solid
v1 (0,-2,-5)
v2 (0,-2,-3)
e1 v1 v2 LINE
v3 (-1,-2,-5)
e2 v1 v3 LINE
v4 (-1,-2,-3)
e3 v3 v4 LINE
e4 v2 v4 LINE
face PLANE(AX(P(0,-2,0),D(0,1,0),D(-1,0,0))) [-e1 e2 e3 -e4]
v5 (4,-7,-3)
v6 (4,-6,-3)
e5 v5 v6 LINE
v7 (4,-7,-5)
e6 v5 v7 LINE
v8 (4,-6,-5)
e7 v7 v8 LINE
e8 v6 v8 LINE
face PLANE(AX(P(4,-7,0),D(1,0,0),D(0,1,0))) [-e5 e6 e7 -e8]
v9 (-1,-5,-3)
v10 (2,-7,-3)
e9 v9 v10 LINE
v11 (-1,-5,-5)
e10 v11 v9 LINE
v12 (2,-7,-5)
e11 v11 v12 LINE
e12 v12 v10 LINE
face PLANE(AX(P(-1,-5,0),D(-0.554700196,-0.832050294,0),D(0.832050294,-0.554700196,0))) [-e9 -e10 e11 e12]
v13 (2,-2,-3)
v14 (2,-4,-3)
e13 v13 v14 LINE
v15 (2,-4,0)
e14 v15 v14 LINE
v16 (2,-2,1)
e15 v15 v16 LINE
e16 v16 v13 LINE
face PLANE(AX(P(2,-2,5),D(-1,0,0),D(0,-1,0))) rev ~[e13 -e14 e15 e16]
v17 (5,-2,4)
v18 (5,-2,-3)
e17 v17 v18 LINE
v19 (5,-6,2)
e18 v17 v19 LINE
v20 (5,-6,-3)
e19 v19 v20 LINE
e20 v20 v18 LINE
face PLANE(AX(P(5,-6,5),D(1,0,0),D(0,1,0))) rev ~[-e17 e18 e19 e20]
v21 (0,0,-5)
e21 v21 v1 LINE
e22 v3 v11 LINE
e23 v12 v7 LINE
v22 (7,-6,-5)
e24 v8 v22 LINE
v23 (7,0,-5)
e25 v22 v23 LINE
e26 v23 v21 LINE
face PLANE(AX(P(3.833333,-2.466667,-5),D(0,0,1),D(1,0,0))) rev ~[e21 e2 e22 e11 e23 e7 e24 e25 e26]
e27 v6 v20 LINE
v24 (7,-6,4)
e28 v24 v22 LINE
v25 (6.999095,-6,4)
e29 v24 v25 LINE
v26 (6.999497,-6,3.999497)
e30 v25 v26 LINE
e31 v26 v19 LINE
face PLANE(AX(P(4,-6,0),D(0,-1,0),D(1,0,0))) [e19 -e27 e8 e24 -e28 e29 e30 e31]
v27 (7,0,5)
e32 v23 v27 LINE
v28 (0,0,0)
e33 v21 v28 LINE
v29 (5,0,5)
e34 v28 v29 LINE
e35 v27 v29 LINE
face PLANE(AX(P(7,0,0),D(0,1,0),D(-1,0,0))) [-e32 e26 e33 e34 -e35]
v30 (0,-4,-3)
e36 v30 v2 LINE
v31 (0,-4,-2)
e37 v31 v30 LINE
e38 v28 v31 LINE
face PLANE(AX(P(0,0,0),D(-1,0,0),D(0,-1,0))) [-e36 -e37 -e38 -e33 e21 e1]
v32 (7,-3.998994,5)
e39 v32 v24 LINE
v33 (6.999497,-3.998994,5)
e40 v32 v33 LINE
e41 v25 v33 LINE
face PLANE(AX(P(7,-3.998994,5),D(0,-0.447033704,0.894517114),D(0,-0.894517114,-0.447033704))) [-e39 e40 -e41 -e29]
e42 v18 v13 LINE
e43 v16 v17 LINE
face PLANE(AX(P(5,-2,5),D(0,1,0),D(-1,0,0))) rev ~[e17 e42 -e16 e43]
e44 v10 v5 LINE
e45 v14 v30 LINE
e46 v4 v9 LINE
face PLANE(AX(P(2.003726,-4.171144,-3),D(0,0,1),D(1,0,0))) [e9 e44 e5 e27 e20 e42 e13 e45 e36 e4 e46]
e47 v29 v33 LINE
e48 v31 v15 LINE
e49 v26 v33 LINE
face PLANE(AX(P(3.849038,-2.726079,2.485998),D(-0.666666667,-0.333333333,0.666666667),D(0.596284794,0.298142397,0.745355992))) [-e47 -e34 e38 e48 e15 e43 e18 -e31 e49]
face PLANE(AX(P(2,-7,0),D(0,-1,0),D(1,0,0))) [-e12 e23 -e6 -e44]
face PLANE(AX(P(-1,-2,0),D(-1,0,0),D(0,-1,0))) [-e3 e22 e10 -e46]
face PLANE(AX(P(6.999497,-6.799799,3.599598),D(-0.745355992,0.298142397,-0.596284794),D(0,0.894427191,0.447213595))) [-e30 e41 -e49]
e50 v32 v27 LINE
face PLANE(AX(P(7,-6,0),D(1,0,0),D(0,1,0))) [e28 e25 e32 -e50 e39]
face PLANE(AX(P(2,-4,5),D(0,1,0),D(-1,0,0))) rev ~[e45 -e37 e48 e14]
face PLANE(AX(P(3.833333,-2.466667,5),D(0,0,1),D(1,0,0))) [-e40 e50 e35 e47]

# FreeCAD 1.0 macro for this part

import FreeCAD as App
import Part
import Sketcher

V = App.Vector
Q = App.Units.Quantity


def add_polygon(sketch, points):
    """Adds a closed chain of lines whose ends are joined by coincident constraints."""
    first, n = sketch.GeometryCount, len(points)
    for a, b in zip(points, points[1:] + points[:1]):
        sketch.addGeometry(Part.LineSegment(App.Vector(*a, 0), App.Vector(*b, 0)), False)
    for i in range(n):
        sketch.addConstraint(Sketcher.Constraint("Coincident", first + i, 2, first + (i + 1) % n, 1))

doc = App.newDocument("Part")
body = doc.addObject("PartDesign::Body", "Body")

sketch1 = body.newObject("Sketcher::SketchObject", "Sketch")
sketch1.AttachmentSupport = (doc.getObject("XY_Plane"), [""])
sketch1.MapMode = "FlatFace"
add_polygon(sketch1, [(7, -6), (7, 0), (0, 0), (0, -2), (-1, -2), (-1, -5), (2, -7), (4, -7), (4, -6)])
sketch1.addConstraint(Sketcher.Constraint("Vertical", 0))
sketch1.addConstraint(Sketcher.Constraint("Horizontal", 1))
sketch1.addConstraint(Sketcher.Constraint("Vertical", 2))
sketch1.addConstraint(Sketcher.Constraint("Horizontal", 3))
sketch1.addConstraint(Sketcher.Constraint("Vertical", 4))
sketch1.addConstraint(Sketcher.Constraint("Horizontal", 6))
sketch1.addConstraint(Sketcher.Constraint("Vertical", 7))
sketch1.addConstraint(Sketcher.Constraint("Horizontal", 8))
sketch1.addConstraint(Sketcher.Constraint("Coincident", 1, 2, -1, 1))
sketch1.addConstraint(Sketcher.Constraint("Equal", 6, 2))
sketch1.addConstraint(Sketcher.Constraint("Equal", 8, 4))
sketch1.addConstraint(Sketcher.Constraint("Equal", 3, 7))
sketch1.addConstraint(Sketcher.Constraint("DistanceX", 1, 2, 1, 1, Q("7 mm")))
sketch1.addConstraint(Sketcher.Constraint("DistanceX", 3, 2, 3, 1, Q("1 mm")))
sketch1.addConstraint(Sketcher.Constraint("DistanceX", 6, 1, 6, 2, Q("2 mm")))
sketch1.addConstraint(Sketcher.Constraint("DistanceX", 8, 1, 8, 2, Q("3 mm")))
sketch1.addConstraint(Sketcher.Constraint("DistanceY", 0, 1, 0, 2, Q("6 mm")))
pad1 = body.newObject("PartDesign::Pad", "Pad")
pad1.Profile = sketch1
pad1.Length = 10
pad1.Midplane = True

sketch2 = body.newObject("Sketcher::SketchObject", "Sketch001")
sketch2.AttachmentSupport = (doc.getObject("XY_Plane"), [""])
sketch2.MapMode = "FlatFace"
sketch2.AttachmentOffset = App.Placement(V(0, 0, 5), App.Rotation())
add_polygon(sketch2, [(5, -6), (5, -2), (2, -2), (2, -4), (0, -4), (0, -2), (-1, -2), (-1, -5), (2, -7), (4, -7), (4, -6)])
sketch2.addConstraint(Sketcher.Constraint("Vertical", 0))
sketch2.addConstraint(Sketcher.Constraint("Horizontal", 1))
sketch2.addConstraint(Sketcher.Constraint("Vertical", 2))
sketch2.addConstraint(Sketcher.Constraint("Horizontal", 3))
sketch2.addConstraint(Sketcher.Constraint("Vertical", 4))
sketch2.addConstraint(Sketcher.Constraint("Horizontal", 5))
sketch2.addConstraint(Sketcher.Constraint("Vertical", 6))
sketch2.addConstraint(Sketcher.Constraint("Horizontal", 8))
sketch2.addConstraint(Sketcher.Constraint("Vertical", 9))
sketch2.addConstraint(Sketcher.Constraint("Horizontal", 10))
sketch2.addConstraint(Sketcher.Constraint("PointOnObject", 3, 2, -2))
sketch2.addConstraint(Sketcher.Constraint("Horizontal", 1, 2, 4, 2))
sketch2.addConstraint(Sketcher.Constraint("Vertical", 2, 2, 7, 2))
sketch2.addConstraint(Sketcher.Constraint("Equal", 3, 8))
sketch2.addConstraint(Sketcher.Constraint("Equal", 5, 10))
sketch2.addConstraint(Sketcher.Constraint("Equal", 8, 2))
sketch2.addConstraint(Sketcher.Constraint("Equal", 1, 6))
sketch2.addConstraint(Sketcher.Constraint("Equal", 10, 9))
sketch2.addConstraint(Sketcher.Constraint("DistanceX", 1, 2, 1, 1, Q("3 mm")))
sketch2.addConstraint(Sketcher.Constraint("DistanceX", 3, 2, 3, 1, Q("2 mm")))
sketch2.addConstraint(Sketcher.Constraint("DistanceY", 0, 1, 0, 2, Q("4 mm")))
sketch2.addConstraint(Sketcher.Constraint("DistanceY", 0, 2, -1, 1, Q("2 mm")))
pocket1 = body.newObject("PartDesign::Pocket", "Pocket")
pocket1.Profile = sketch2
pocket1.Length = 8

sketch3 = body.newObject("Sketcher::SketchObject", "Sketch002")
sketch3.AttachmentSupport = (doc.getObject("XZ_Plane"), [""])
sketch3.MapMode = "FlatFace"
sketch3.AttachmentOffset = App.Placement(V(0, 0, 2), App.Rotation())
add_polygon(sketch3, [(0, 0), (5, 5), (0, 5)])
sketch3.addConstraint(Sketcher.Constraint("Horizontal", 1))
sketch3.addConstraint(Sketcher.Constraint("Vertical", 2))
sketch3.addConstraint(Sketcher.Constraint("Coincident", 2, 2, -1, 1))
sketch3.addConstraint(Sketcher.Constraint("Equal", 1, 2))
sketch3.addConstraint(Sketcher.Constraint("DistanceX", 1, 2, 1, 1, Q("5 mm")))
pocket2 = body.newObject("PartDesign::Pocket", "Pocket001")
pocket2.Profile = sketch3
pocket2.Type = "ThroughAll"

sketch4 = body.newObject("Sketcher::SketchObject", "Sketch003")
sketch4.AttachmentSupport = (doc.getObject("XZ_Plane"), [""])
sketch4.MapMode = "FlatFace"
sketch4.AttachmentOffset = App.Placement(V(0, 0, 4), App.Rotation())
add_polygon(sketch4, [(0, 0), (2, 2), (2, 5), (0, 5)])
sketch4.addConstraint(Sketcher.Constraint("Vertical", 1))
sketch4.addConstraint(Sketcher.Constraint("Horizontal", 2))
sketch4.addConstraint(Sketcher.Constraint("Vertical", 3))
sketch4.addConstraint(Sketcher.Constraint("Coincident", 3, 2, -1, 1))
sketch4.addConstraint(Sketcher.Constraint("DistanceX", 2, 2, 2, 1, Q("2 mm")))
sketch4.addConstraint(Sketcher.Constraint("DistanceY", 1, 1, 1, 2, Q("3 mm")))
sketch4.addConstraint(Sketcher.Constraint("DistanceY", 3, 2, 3, 1, Q("5 mm")))
pocket3 = body.newObject("PartDesign::Pocket", "Pocket002")
pocket3.Profile = sketch4
pocket3.Type = "ThroughAll"

sketch5 = body.newObject("Sketcher::SketchObject", "Sketch004")
sketch5.Placement = App.Placement(V(0, 0, 0), App.Rotation(V(0.596284794, 0.298142397, 0.745355992), V(-0.447213595, 0.894427191, 0), V(-0.666666667, -0.333333333, 0.666666667), "ZXY"))
add_polygon(sketch5, [(0, 0), (-2.683282, -3.577709), (4.829367, -9.212195), (9.390811, -3.13027)])
sketch5.addConstraint(Sketcher.Constraint("Coincident", 3, 2, -1, 1))
sketch5.addConstraint(Sketcher.Constraint("Perpendicular", 0, 1))
sketch5.addConstraint(Sketcher.Constraint("Perpendicular", 1, 2))
sketch5.addConstraint(Sketcher.Constraint("Distance", 1, Q("9.390811 mm")))
sketch5.addConstraint(Sketcher.Constraint("DistanceX", 0, 2, -1, 1, Q("2.683282 mm")))
sketch5.addConstraint(Sketcher.Constraint("DistanceY", 0, 2, -1, 1, Q("3.577709 mm")))
sketch5.addConstraint(Sketcher.Constraint("DistanceX", -1, 1, 2, 2, Q("9.390811 mm")))
pocket4 = body.newObject("PartDesign::Pocket", "Pocket003")
pocket4.Profile = sketch5
pocket4.Length = 10
pocket4.Reversed = True

sketch6 = body.newObject("Sketcher::SketchObject", "Sketch005")
sketch6.AttachmentSupport = (doc.getObject("YZ_Plane"), [""])
sketch6.MapMode = "FlatFace"
sketch6.AttachmentOffset = App.Placement(V(0, 0, 7), App.Rotation())
add_polygon(sketch6, [(-6, 5), (-6, 4), (-3.998994, 5)])
sketch6.addConstraint(Sketcher.Constraint("Vertical", 0))
sketch6.addConstraint(Sketcher.Constraint("Horizontal", 2))
sketch6.addConstraint(Sketcher.Constraint("DistanceY", 0, 2, 0, 1, Q("1 mm")))
sketch6.addConstraint(Sketcher.Constraint("DistanceX", 0, 2, -1, 1, Q("6 mm")))
sketch6.addConstraint(Sketcher.Constraint("DistanceY", -1, 1, 0, 2, Q("4 mm")))
sketch6.addConstraint(Sketcher.Constraint("DistanceX", 2, 2, 2, 1, Q("2.001006 mm")))
pocket5 = body.newObject("PartDesign::Pocket", "Pocket004")
pocket5.Profile = sketch6
pocket5.Length = 1

doc.recompute()
